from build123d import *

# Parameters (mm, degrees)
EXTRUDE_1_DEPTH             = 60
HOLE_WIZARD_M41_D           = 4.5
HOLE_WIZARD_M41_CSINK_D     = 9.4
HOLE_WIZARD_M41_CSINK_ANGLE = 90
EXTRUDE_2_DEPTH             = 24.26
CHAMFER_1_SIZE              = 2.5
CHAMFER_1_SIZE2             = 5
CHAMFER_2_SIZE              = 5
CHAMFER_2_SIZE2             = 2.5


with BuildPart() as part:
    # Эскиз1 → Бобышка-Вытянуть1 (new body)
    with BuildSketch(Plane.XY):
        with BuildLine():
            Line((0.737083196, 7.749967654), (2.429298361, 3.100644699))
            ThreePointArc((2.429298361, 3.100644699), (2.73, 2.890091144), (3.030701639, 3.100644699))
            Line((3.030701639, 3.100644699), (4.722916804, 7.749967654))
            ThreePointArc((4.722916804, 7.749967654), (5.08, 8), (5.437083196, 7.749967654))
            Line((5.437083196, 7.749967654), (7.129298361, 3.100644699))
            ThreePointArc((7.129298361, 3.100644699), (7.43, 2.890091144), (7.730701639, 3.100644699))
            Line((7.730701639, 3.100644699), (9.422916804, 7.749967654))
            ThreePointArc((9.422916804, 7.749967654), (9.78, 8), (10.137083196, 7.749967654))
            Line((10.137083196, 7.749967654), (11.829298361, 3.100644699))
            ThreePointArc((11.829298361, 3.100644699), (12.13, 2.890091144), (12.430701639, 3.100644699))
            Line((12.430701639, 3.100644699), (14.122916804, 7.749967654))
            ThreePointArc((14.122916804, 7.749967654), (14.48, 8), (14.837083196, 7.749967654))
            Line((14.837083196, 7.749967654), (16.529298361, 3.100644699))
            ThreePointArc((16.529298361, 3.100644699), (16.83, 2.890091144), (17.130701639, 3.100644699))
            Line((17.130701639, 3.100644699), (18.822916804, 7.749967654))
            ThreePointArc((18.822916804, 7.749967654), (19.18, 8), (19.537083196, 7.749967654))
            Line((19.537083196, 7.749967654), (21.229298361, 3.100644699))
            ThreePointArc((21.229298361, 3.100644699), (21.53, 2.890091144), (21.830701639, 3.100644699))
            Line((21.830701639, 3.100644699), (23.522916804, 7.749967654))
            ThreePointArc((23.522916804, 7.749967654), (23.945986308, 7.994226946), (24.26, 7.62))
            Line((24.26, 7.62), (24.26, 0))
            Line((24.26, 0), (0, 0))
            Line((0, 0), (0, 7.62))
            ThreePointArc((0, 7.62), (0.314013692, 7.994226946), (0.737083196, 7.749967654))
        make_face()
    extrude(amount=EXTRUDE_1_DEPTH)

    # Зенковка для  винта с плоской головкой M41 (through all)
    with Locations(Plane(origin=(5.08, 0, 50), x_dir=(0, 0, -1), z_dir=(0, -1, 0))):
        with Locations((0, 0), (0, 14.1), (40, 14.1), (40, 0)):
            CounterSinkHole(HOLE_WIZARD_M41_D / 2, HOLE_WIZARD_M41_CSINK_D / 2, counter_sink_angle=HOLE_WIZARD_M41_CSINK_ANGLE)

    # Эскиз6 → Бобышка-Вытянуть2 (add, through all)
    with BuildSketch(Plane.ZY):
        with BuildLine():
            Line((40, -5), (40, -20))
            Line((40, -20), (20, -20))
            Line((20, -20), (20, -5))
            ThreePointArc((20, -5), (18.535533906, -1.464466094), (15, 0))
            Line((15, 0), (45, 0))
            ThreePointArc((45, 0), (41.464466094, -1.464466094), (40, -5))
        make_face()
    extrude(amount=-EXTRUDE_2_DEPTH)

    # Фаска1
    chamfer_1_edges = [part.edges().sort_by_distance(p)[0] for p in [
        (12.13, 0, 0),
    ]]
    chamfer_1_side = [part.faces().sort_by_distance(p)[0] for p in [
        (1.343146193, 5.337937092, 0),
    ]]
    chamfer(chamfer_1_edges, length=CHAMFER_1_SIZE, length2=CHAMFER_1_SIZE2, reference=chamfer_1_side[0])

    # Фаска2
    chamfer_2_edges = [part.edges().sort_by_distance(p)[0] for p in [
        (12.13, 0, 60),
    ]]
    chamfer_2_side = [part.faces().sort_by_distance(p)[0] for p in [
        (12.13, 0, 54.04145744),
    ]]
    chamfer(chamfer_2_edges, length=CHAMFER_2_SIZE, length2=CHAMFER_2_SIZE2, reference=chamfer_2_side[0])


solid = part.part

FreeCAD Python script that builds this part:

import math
import FreeCAD as App
import Part
import Sketcher
Q = App.Units.Quantity


def edges_at(feature, points):
    """Names of the edges that pass closest to the given points."""
    edges = feature.Shape.Edges
    near = lambda p: min(range(len(edges)), key=lambda i: edges[i].distToShape(Part.Vertex(*p))[0])
    return sorted({f"Edge{near(p) + 1}" for p in points})

doc = App.newDocument("Part")
body = doc.addObject("PartDesign::Body", "Body")

# Sketch on XY plane
sketch1 = body.newObject("Sketcher::SketchObject", "Sketch")
sketch1.AttachmentSupport = (doc.getObject("XY_Plane"), [""])
sketch1.MapMode = "FlatFace"
sketch1.addGeometry([
    Part.LineSegment(App.Vector(2.43, 3.1, 0), App.Vector(0.74, 7.75, 0)),  # 0
    Part.ArcOfCircle(Part.Circle(App.Vector(0.38, 7.62, 0), App.Vector(0, 0, 1), 0.38), math.radians(20), math.radians(180)),  # 1
    Part.LineSegment(App.Vector(0, 7.62, 0), App.Vector(0, 0, 0)),  # 2
    Part.LineSegment(App.Vector(0, 0, 0), App.Vector(24.26, 0, 0)),  # 3
    Part.LineSegment(App.Vector(24.26, 0, 0), App.Vector(24.26, 7.62, 0)),  # 4
    Part.ArcOfCircle(Part.Circle(App.Vector(23.88, 7.62, 0), App.Vector(0, 0, 1), 0.38), math.radians(0), math.radians(160)),  # 5
    Part.LineSegment(App.Vector(23.52, 7.75, 0), App.Vector(21.83, 3.1, 0)),  # 6
    Part.ArcOfCircle(Part.Circle(App.Vector(21.53, 3.21, 0), App.Vector(0, 0, 1), 0.32), math.radians(-160), math.radians(-20)),  # 7
    Part.LineSegment(App.Vector(21.23, 3.1, 0), App.Vector(19.54, 7.75, 0)),  # 8
    Part.ArcOfCircle(Part.Circle(App.Vector(19.18, 7.62, 0), App.Vector(0, 0, 1), 0.38), math.radians(20), math.radians(160)),  # 9
    Part.LineSegment(App.Vector(18.82, 7.75, 0), App.Vector(17.13, 3.1, 0)),  # 10
    Part.ArcOfCircle(Part.Circle(App.Vector(16.83, 3.21, 0), App.Vector(0, 0, 1), 0.32), math.radians(-160), math.radians(-20)),  # 11
    Part.LineSegment(App.Vector(16.53, 3.1, 0), App.Vector(14.84, 7.75, 0)),  # 12
    Part.ArcOfCircle(Part.Circle(App.Vector(14.48, 7.62, 0), App.Vector(0, 0, 1), 0.38), math.radians(20), math.radians(160)),  # 13
    Part.LineSegment(App.Vector(14.12, 7.75, 0), App.Vector(12.43, 3.1, 0)),  # 14
    Part.ArcOfCircle(Part.Circle(App.Vector(12.13, 3.21, 0), App.Vector(0, 0, 1), 0.32), math.radians(-160), math.radians(-20)),  # 15
    Part.LineSegment(App.Vector(11.83, 3.1, 0), App.Vector(10.14, 7.75, 0)),  # 16
    Part.ArcOfCircle(Part.Circle(App.Vector(9.78, 7.62, 0), App.Vector(0, 0, 1), 0.38), math.radians(20), math.radians(160)),  # 17
    Part.LineSegment(App.Vector(9.42, 7.75, 0), App.Vector(7.73, 3.1, 0)),  # 18
    Part.ArcOfCircle(Part.Circle(App.Vector(7.43, 3.21, 0), App.Vector(0, 0, 1), 0.32), math.radians(-160), math.radians(-20)),  # 19
    Part.LineSegment(App.Vector(7.13, 3.1, 0), App.Vector(5.44, 7.75, 0)),  # 20
    Part.ArcOfCircle(Part.Circle(App.Vector(5.08, 7.62, 0), App.Vector(0, 0, 1), 0.38), math.radians(20), math.radians(160)),  # 21
    Part.LineSegment(App.Vector(4.72, 7.75, 0), App.Vector(3.03, 3.1, 0)),  # 22
    Part.ArcOfCircle(Part.Circle(App.Vector(2.73, 3.21, 0), App.Vector(0, 0, 1), 0.32), math.radians(-160), math.radians(-20)),  # 23
], False)
sketch1.addConstraint([
    Sketcher.Constraint("Tangent", 0, 2, 1, 1),
    Sketcher.Constraint("Tangent", 1, 2, 2, 1),
    Sketcher.Constraint("Coincident", 2, 2, 3, 1),
    Sketcher.Constraint("Coincident", 3, 2, 4, 1),
    Sketcher.Constraint("Tangent", 4, 2, 5, 1),
    Sketcher.Constraint("Tangent", 5, 2, 6, 1),
    Sketcher.Constraint("Tangent", 6, 2, 7, 2),
    Sketcher.Constraint("Tangent", 7, 1, 8, 1),
    Sketcher.Constraint("Tangent", 8, 2, 9, 1),
    Sketcher.Constraint("Tangent", 9, 2, 10, 1),
    Sketcher.Constraint("Tangent", 10, 2, 11, 2),
    Sketcher.Constraint("Tangent", 11, 1, 12, 1),
    Sketcher.Constraint("Tangent", 12, 2, 13, 1),
    Sketcher.Constraint("Tangent", 13, 2, 14, 1),
    Sketcher.Constraint("Tangent", 14, 2, 15, 2),
    Sketcher.Constraint("Tangent", 15, 1, 16, 1),
    Sketcher.Constraint("Tangent", 16, 2, 17, 1),
    Sketcher.Constraint("Tangent", 17, 2, 18, 1),
    Sketcher.Constraint("Tangent", 18, 2, 19, 2),
    Sketcher.Constraint("Tangent", 19, 1, 20, 1),
    Sketcher.Constraint("Tangent", 20, 2, 21, 1),
    Sketcher.Constraint("Tangent", 21, 2, 22, 1),
    Sketcher.Constraint("Tangent", 22, 2, 23, 2),
    Sketcher.Constraint("Tangent", 23, 1, 0, 1),
    Sketcher.Constraint("Vertical", 2),
    Sketcher.Constraint("Horizontal", 3),
    Sketcher.Constraint("Vertical", 4),
    Sketcher.Constraint("Coincident", 2, 2, -1, 1),
    Sketcher.Constraint("Equal", 1, 5),
    Sketcher.Constraint("Equal", 5, 9),
    Sketcher.Constraint("Equal", 7, 11),
    Sketcher.Constraint("Equal", 9, 13),
    Sketcher.Constraint("Equal", 11, 15),
    Sketcher.Constraint("Equal", 13, 17),
    Sketcher.Constraint("Equal", 15, 19),
    Sketcher.Constraint("Equal", 17, 21),
    Sketcher.Constraint("Equal", 19, 23),
    Sketcher.Constraint("Parallel", 0, 8),
    Sketcher.Constraint("Parallel", 6, 10),
    Sketcher.Constraint("Parallel", 8, 12),
    Sketcher.Constraint("Parallel", 10, 14),
    Sketcher.Constraint("Parallel", 12, 16),
    Sketcher.Constraint("Parallel", 14, 18),
    Sketcher.Constraint("Parallel", 16, 20),
    Sketcher.Constraint("Parallel", 18, 22),
    Sketcher.Constraint("Horizontal", 1, 3, 5, 3),
    Sketcher.Constraint("Horizontal", 5, 3, 9, 3),
    Sketcher.Constraint("Horizontal", 7, 3, 11, 3),
    Sketcher.Constraint("Horizontal", 9, 3, 13, 3),
    Sketcher.Constraint("Horizontal", 11, 3, 15, 3),
    Sketcher.Constraint("Horizontal", 13, 3, 17, 3),
    Sketcher.Constraint("Horizontal", 15, 3, 19, 3),
    Sketcher.Constraint("Horizontal", 17, 3, 21, 3),
    Sketcher.Constraint("Horizontal", 19, 3, 23, 3),
    Sketcher.Constraint("Horizontal", 0, 2, 5, 2),
    Sketcher.Constraint("Angle", 0, Q("110 deg")),
    Sketcher.Constraint("Radius", 1, 0.38),
    Sketcher.Constraint("Radius", 7, 0.32),
    Sketcher.Constraint("DistanceX", 3, 1, 3, 2, 24.26),
    Sketcher.Constraint("DistanceY", 2, 2, 2, 1, 7.62),
])
pad1 = body.newObject("PartDesign::Pad", "Pad")
pad1.Profile = sketch1
pad1.Length = 60

# Sketch on XZ plane
sketch2 = body.newObject("Sketcher::SketchObject", "Sketch001")
sketch2.AttachmentSupport = (doc.getObject("XZ_Plane"), [""])
sketch2.MapMode = "FlatFace"
sketch2.addGeometry([
    Part.Circle(App.Vector(5.1, 50, 0), App.Vector(0, 0, 1), 2.2),
    Part.Circle(App.Vector(19.2, 50, 0), App.Vector(0, 0, 1), 2.2),
    Part.Circle(App.Vector(19.2, 10, 0), App.Vector(0, 0, 1), 2.2),
    Part.Circle(App.Vector(5.1, 10, 0), App.Vector(0, 0, 1), 2.2),
], False)
sketch2.addConstraint([
    Sketcher.Constraint("Equal", 0, 1),
    Sketcher.Constraint("Equal", 1, 2),
    Sketcher.Constraint("Equal", 2, 3),
    Sketcher.Constraint("Horizontal", 0, 3, 1, 3),
    Sketcher.Constraint("Horizontal", 2, 3, 3, 3),
    Sketcher.Constraint("Vertical", 1, 3, 2, 3),
    Sketcher.Constraint("Vertical", 0, 3, 3, 3),
    Sketcher.Constraint("Diameter", 0, 4.5),
    Sketcher.Constraint("DistanceY", -1, 1, 0, 3, 50.0),
    Sketcher.Constraint("DistanceY", -1, 1, 2, 3, 10.0),
    Sketcher.Constraint("DistanceX", 0, 3, 1, 3, 14.1),
    Sketcher.Constraint("DistanceX", -1, 1, 0, 3, 5.08),
])
doc.recompute()
hole = body.newObject("PartDesign::Hole", "Hole")
hole.Profile = sketch2
hole.ThreadType = "None"
hole.Diameter = 4.5
hole.DepthType = "ThroughAll"
hole.HoleCutType = "Countersink"
hole.HoleCutDiameter = 9.4
hole.HoleCutCountersinkAngle = 90

# Sketch on YZ plane
sketch3 = body.newObject("Sketcher::SketchObject", "Sketch002")
sketch3.AttachmentSupport = (doc.getObject("YZ_Plane"), [""])
sketch3.MapMode = "FlatFace"
sketch3.addGeometry([
    Part.LineSegment(App.Vector(-20, 40, 0), App.Vector(-5, 40, 0)),  # 0
    Part.ArcOfCircle(Part.Circle(App.Vector(-5, 45, 0), App.Vector(0, 0, 1), 5), math.radians(-90), math.radians(0)),  # 1
    Part.LineSegment(App.Vector(0, 45, 0), App.Vector(0, 15, 0)),  # 2
    Part.ArcOfCircle(Part.Circle(App.Vector(-5, 15, 0), App.Vector(0, 0, 1), 5), math.radians(0), math.radians(90)),  # 3
    Part.LineSegment(App.Vector(-5, 20, 0), App.Vector(-20, 20, 0)),  # 4
    Part.LineSegment(App.Vector(-20, 20, 0), App.Vector(-20, 40, 0)),  # 5
], False)
sketch3.addConstraint([
    Sketcher.Constraint("Tangent", 0, 2, 1, 1),
    Sketcher.Constraint("Tangent", 1, 2, 2, 1),
    Sketcher.Constraint("Tangent", 2, 2, 3, 1),
    Sketcher.Constraint("Tangent", 3, 2, 4, 1),
    Sketcher.Constraint("Coincident", 4, 2, 5, 1),
    Sketcher.Constraint("Coincident", 5, 2, 0, 1),
    Sketcher.Constraint("Horizontal", 0),
    Sketcher.Constraint("Vertical", 2),
    Sketcher.Constraint("Horizontal", 4),
    Sketcher.Constraint("Vertical", 5),
    Sketcher.Constraint("Equal", 1, 3),
    Sketcher.Constraint("PointOnObject", 1, 2, -2),
    Sketcher.Constraint("Radius", 1, 5.0),
    Sketcher.Constraint("DistanceX", 0, 1, 0, 2, 15.0),
    Sketcher.Constraint("DistanceY", 2, 2, 2, 1, 30.0),
    Sketcher.Constraint("DistanceY", -1, 1, 1, 3, 45.0),
])
pad2 = body.newObject("PartDesign::Pad", "Pad001")
pad2.Profile = sketch3
pad2.Length = 24.26
doc.recompute()

chamfer = body.newObject("PartDesign::Chamfer", "Chamfer")
chamfer.Base = (pad2, edges_at(pad2, [(12.13, 0, 0)]))
chamfer.ChamferType = "Two distances"
chamfer.Size = 2.5
chamfer.Size2 = 5
doc.recompute()

chamfer2 = body.newObject("PartDesign::Chamfer", "Chamfer001")
chamfer2.Base = (chamfer, edges_at(chamfer, [(12.13, 0, 60)]))
chamfer2.ChamferType = "Two distances"
chamfer2.Size = 5
chamfer2.Size2 = 2.5
chamfer2.FlipDirection = True

doc.recompute()
